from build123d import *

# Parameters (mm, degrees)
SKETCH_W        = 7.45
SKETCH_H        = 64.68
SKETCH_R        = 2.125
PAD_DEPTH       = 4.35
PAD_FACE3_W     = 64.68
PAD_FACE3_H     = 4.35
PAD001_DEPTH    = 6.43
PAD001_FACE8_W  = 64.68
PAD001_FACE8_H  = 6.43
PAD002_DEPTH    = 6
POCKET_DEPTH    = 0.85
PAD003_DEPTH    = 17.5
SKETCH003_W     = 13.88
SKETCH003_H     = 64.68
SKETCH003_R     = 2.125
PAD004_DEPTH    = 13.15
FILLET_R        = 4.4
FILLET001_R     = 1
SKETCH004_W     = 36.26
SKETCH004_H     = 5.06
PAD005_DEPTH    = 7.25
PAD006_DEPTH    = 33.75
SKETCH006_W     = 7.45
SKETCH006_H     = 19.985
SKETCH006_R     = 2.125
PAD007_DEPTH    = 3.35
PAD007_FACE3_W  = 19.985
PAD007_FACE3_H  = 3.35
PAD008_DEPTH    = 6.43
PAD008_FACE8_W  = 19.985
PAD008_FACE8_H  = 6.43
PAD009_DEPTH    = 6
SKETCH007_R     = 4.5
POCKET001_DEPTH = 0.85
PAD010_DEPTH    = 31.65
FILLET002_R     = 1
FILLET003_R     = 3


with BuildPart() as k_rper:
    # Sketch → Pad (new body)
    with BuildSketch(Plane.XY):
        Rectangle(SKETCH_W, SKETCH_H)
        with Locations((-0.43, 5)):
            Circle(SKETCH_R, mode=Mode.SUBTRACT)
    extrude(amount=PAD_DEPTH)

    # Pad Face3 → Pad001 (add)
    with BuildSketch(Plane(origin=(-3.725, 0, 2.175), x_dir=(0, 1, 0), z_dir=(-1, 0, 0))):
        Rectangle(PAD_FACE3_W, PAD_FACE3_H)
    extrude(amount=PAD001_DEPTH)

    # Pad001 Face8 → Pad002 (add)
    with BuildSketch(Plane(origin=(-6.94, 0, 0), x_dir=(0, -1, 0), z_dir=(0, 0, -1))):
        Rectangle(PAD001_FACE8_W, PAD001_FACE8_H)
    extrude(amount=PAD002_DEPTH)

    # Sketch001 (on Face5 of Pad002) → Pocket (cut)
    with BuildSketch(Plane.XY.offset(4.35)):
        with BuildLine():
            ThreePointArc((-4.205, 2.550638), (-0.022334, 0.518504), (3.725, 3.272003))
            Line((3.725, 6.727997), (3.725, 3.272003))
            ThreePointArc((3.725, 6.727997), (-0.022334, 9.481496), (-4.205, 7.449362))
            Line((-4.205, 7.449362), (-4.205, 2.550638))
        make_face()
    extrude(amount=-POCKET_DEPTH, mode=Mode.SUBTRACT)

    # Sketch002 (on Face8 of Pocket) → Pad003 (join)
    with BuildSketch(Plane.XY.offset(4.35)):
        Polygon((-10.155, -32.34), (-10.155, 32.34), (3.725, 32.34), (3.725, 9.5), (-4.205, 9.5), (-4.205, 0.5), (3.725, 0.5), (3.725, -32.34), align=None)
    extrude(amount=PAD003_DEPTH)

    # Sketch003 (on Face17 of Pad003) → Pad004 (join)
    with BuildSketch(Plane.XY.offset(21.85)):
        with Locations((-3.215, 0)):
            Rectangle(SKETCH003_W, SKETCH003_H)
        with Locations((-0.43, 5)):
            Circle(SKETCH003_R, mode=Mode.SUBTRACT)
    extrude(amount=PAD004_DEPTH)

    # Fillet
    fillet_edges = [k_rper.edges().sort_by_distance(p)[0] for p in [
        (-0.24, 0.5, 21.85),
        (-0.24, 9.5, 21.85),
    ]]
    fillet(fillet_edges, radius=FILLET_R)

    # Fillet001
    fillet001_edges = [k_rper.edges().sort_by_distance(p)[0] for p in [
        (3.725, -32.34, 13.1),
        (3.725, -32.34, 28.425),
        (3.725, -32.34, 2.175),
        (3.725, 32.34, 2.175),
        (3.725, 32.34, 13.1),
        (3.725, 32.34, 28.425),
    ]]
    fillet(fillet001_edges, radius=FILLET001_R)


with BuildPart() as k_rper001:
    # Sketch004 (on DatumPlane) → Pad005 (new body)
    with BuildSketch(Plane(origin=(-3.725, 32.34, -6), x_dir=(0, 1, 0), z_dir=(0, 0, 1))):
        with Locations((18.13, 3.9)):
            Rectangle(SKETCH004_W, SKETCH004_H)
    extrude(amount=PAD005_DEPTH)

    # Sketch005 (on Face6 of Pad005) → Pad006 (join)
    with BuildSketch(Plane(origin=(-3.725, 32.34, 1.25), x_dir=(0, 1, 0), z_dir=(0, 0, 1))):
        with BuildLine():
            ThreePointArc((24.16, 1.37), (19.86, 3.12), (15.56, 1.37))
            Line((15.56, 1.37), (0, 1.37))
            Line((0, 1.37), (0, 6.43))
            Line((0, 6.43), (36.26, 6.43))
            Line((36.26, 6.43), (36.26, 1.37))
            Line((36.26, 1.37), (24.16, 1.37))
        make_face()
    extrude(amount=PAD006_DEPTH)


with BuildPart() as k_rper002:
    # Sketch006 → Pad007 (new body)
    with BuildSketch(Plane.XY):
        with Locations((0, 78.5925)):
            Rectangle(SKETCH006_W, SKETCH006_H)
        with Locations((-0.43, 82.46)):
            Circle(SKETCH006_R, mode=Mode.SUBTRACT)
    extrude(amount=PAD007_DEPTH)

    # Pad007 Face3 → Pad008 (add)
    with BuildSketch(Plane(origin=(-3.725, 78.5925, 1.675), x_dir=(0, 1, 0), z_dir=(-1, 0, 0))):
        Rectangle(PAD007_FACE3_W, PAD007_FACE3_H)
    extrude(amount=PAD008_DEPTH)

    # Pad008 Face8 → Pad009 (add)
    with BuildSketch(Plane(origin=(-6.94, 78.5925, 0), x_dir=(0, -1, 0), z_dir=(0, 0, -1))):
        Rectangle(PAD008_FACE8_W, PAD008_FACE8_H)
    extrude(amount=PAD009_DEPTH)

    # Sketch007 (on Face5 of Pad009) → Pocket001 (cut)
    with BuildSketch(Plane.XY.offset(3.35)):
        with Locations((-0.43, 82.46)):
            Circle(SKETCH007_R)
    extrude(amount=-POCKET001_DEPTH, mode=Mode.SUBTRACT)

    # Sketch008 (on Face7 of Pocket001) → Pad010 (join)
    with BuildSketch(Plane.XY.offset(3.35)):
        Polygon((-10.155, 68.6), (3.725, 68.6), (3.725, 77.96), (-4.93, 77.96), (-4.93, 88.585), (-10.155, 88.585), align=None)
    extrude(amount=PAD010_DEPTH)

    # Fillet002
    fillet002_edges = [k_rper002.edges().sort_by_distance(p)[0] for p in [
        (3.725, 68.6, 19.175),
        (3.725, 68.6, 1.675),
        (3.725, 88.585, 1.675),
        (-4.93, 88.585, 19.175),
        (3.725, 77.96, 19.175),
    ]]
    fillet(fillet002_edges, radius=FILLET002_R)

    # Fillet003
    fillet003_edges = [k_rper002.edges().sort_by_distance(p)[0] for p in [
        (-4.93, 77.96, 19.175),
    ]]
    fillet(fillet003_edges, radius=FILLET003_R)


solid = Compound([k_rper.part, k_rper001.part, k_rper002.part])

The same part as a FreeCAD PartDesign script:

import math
import FreeCAD as App
import Part
import Sketcher

V = App.Vector


def edges_at(feature, points):
    """Names of the edges that pass closest to the given points."""
    edges = feature.Shape.Edges
    near = lambda p: min(range(len(edges)), key=lambda i: edges[i].distToShape(Part.Vertex(*p))[0])
    return sorted({f"Edge{near(p) + 1}" for p in points})


def add_polygon(sketch, points):
    """Adds a closed chain of lines whose ends are joined by coincident constraints."""
    first, n = sketch.GeometryCount, len(points)
    for a, b in zip(points, points[1:] + points[:1]):
        sketch.addGeometry(Part.LineSegment(App.Vector(*a, 0), App.Vector(*b, 0)), False)
    for i in range(n):
        sketch.addConstraint(Sketcher.Constraint("Coincident", first + i, 2, first + (i + 1) % n, 1))

doc = App.newDocument("Part")
body = doc.addObject("PartDesign::Body", "Body")

sketch1 = body.newObject("Sketcher::SketchObject", "Sketch")
sketch1.AttachmentSupport = (doc.getObject("XY_Plane"), [""])
sketch1.MapMode = "FlatFace"
add_polygon(sketch1, [(-3.7, 32.3), (-3.7, -32.3), (3.7, -32.3), (3.7, 32.3)])
sketch1.addGeometry(Part.Circle(V(-0.4, 5, 0), V(0, 0, 1), 2.1), False)
sketch1.addConstraint([
    Sketcher.Constraint("Vertical", 0),
    Sketcher.Constraint("Horizontal", 1),
    Sketcher.Constraint("Vertical", 2),
    Sketcher.Constraint("Horizontal", 3),
    Sketcher.Constraint("Symmetric", 0, 2, 2, 2, -1, 1),
    Sketcher.Constraint("Diameter", 4, 4.25),
    Sketcher.Constraint("DistanceY", -1, 1, 4, 3, 5.0),
    Sketcher.Constraint("DistanceX", 1, 1, 1, 2, 7.45),
    Sketcher.Constraint("DistanceY", 0, 2, 0, 1, 64.68),
    Sketcher.Constraint("DistanceX", 4, 3, -1, 1, 0.43),
])
pad1 = body.newObject("PartDesign::Pad", "Pad")
pad1.Profile = sketch1
pad1.Length = 4.35

sketch2 = body.newObject("Sketcher::SketchObject", "Sketch001")
sketch2.AttachmentSupport = (doc.getObject("YZ_Plane"), [""])
sketch2.MapMode = "FlatFace"
sketch2.AttachmentOffset = App.Placement(V(0, 0, -3.725), App.Rotation())
add_polygon(sketch2, [(-32.3, 0), (-32.3, 4.3), (32.3, 4.3), (32.3, 0)])
sketch2.addConstraint([
    Sketcher.Constraint("Vertical", 0),
    Sketcher.Constraint("Horizontal", 1),
    Sketcher.Constraint("Vertical", 2),
    Sketcher.Constraint("Horizontal", 3),
    Sketcher.Constraint("Symmetric", 2, 2, 3, 2, -1, 1),
    Sketcher.Constraint("DistanceX", 1, 1, 1, 2, 64.68),
    Sketcher.Constraint("DistanceY", 0, 1, 0, 2, 4.35),
])
pad2 = body.newObject("PartDesign::Pad", "Pad001")
pad2.Profile = sketch2
pad2.Length = 6.43
pad2.Reversed = True

sketch3 = body.newObject("Sketcher::SketchObject", "Sketch002")
sketch3.AttachmentSupport = (doc.getObject("XY_Plane"), [""])
sketch3.MapMode = "FlatFace"
add_polygon(sketch3, [(-10, 32), (-4, 32), (-4, -32), (-10, -32)])
sketch3.addConstraint([
    Sketcher.Constraint("Horizontal", 0),
    Sketcher.Constraint("Vertical", 1),
    Sketcher.Constraint("Horizontal", 2),
    Sketcher.Constraint("Vertical", 3),
    Sketcher.Constraint("DistanceX", 0, 1, 0, 2, 6.43),
    Sketcher.Constraint("DistanceY", 1, 2, 1, 1, 64.68),
    Sketcher.Constraint("DistanceY", -1, 1, 0, 2, 32.34),
    Sketcher.Constraint("DistanceX", 0, 2, -1, 1, 3.725),
])
pad3 = body.newObject("PartDesign::Pad", "Pad002")
pad3.Profile = sketch3
pad3.Length = 6
pad3.Reversed = True

sketch4 = body.newObject("Sketcher::SketchObject", "Sketch003")
sketch4.AttachmentSupport = (doc.getObject("XY_Plane"), [""])
sketch4.MapMode = "FlatFace"
sketch4.AttachmentOffset = App.Placement(V(0, 0, 4.35), App.Rotation())
sketch4.addGeometry([
    Part.ArcOfCircle(Part.Circle(V(-0.4, 5, 0), V(0, 0, 1), 4.5), math.radians(-147), math.radians(-23)),
    Part.LineSegment(V(3.7, 3.3, 0), V(3.7, 6.7, 0)),
    Part.ArcOfCircle(Part.Circle(V(-0.4, 5, 0), V(0, 0, 1), 4.5), math.radians(23), math.radians(147)),
    Part.LineSegment(V(-4.2, 7.4, 0), V(-4.2, 2.6, 0)),
], False)
sketch4.addConstraint([
    Sketcher.Constraint("Coincident", 0, 2, 1, 1),
    Sketcher.Constraint("Coincident", 1, 2, 2, 1),
    Sketcher.Constraint("Coincident", 2, 2, 3, 1),
    Sketcher.Constraint("Coincident", 3, 2, 0, 1),
    Sketcher.Constraint("Vertical", 1),
    Sketcher.Constraint("Vertical", 3),
    Sketcher.Constraint("Coincident", 2, 3, 0, 3),
    Sketcher.Constraint("Equal", 0, 2),
    Sketcher.Constraint("Radius", 0, 4.5),
    Sketcher.Constraint("DistanceY", -1, 1, 0, 3, 5.0),
    Sketcher.Constraint("DistanceX", 0, 3, -1, 1, 0.43),
    Sketcher.Constraint("DistanceX", 2, 2, 1, 2, 7.93),
    Sketcher.Constraint("DistanceX", -1, 1, 0, 2, 3.725),
])
pocket1 = body.newObject("PartDesign::Pocket", "Pocket")
pocket1.Profile = sketch4
pocket1.Length = 0.85

sketch5 = body.newObject("Sketcher::SketchObject", "Sketch004")
sketch5.AttachmentSupport = (doc.getObject("XY_Plane"), [""])
sketch5.MapMode = "FlatFace"
sketch5.AttachmentOffset = App.Placement(V(0, 0, 4.35), App.Rotation())
add_polygon(sketch5, [(-10, 32), (-10, -32), (4, -32), (4, 0), (-4, 0), (-4, 10), (4, 10), (4, 32)])
sketch5.addConstraint([
    Sketcher.Constraint("Vertical", 0),
    Sketcher.Constraint("Horizontal", 1),
    Sketcher.Constraint("Vertical", 2),
    Sketcher.Constraint("Horizontal", 3),
    Sketcher.Constraint("Vertical", 4),
    Sketcher.Constraint("Horizontal", 5),
    Sketcher.Constraint("Vertical", 6),
    Sketcher.Constraint("Horizontal", 7),
    Sketcher.Constraint("Symmetric", 1, 2, 6, 2, -1),
    Sketcher.Constraint("DistanceY", 4, 1, 4, 2, 9.0),
    Sketcher.Constraint("DistanceX", 1, 1, 1, 2, 13.88),
    Sketcher.Constraint("DistanceX", 3, 2, 3, 1, 7.93),
    Sketcher.Constraint("DistanceY", 0, 2, 0, 1, 64.68),
    Sketcher.Constraint("DistanceY", 2, 1, 2, 2, 32.84),
    Sketcher.Constraint("DistanceX", 0, 2, -1, 1, 10.155),
])
pad4 = body.newObject("PartDesign::Pad", "Pad003")
pad4.Profile = sketch5
pad4.Length = 17.5

sketch6 = body.newObject("Sketcher::SketchObject", "Sketch005")
sketch6.AttachmentSupport = (doc.getObject("XY_Plane"), [""])
sketch6.MapMode = "FlatFace"
sketch6.AttachmentOffset = App.Placement(V(0, 0, 21.85), App.Rotation())
add_polygon(sketch6, [(-10.2, 32.3), (-10.2, -32.3), (3.7, -32.3), (3.7, 32.3)])
sketch6.addGeometry(Part.Circle(V(-0.4, 5, 0), V(0, 0, 1), 2.1), False)
sketch6.addConstraint([
    Sketcher.Constraint("Vertical", 0),
    Sketcher.Constraint("Horizontal", 1),
    Sketcher.Constraint("Vertical", 2),
    Sketcher.Constraint("Horizontal", 3),
    Sketcher.Constraint("Diameter", 4, 4.25),
    Sketcher.Constraint("DistanceY", -1, 1, 4, 3, 5.0),
    Sketcher.Constraint("DistanceX", 1, 1, 1, 2, 13.88),
    Sketcher.Constraint("DistanceY", 0, 2, 0, 1, 64.68),
    Sketcher.Constraint("DistanceX", 4, 3, -1, 1, 0.43),
    Sketcher.Constraint("DistanceY", 0, 2, -1, 1, 32.34),
    Sketcher.Constraint("DistanceX", 0, 2, -1, 1, 10.155),
])
pad5 = body.newObject("PartDesign::Pad", "Pad004")
pad5.Profile = sketch6
pad5.Length = 13.15
doc.recompute()

fillet = body.newObject("PartDesign::Fillet", "Fillet")
fillet.Base = (pad5, edges_at(pad5, [(-0.24, 0.5, 21.85), (-0.24, 9.5, 21.85)]))
fillet.Radius = 4.4
doc.recompute()

fillet2 = body.newObject("PartDesign::Fillet", "Fillet001")
fillet2.Base = (fillet, edges_at(fillet, [
    (3.725, -32.34, 17.5),
    (3.725, -32.34, 17.5),
    (3.725, -32.34, 17.5),
    (3.725, 32.34, 17.5),
    (3.725, 32.34, 17.5),
    (3.725, 32.34, 17.5),
]))
fillet2.Radius = 1
body2 = doc.addObject("PartDesign::Body", "Body001")

sketch7 = body2.newObject("Sketcher::SketchObject", "Sketch006")
sketch7.AttachmentSupport = (doc.getObject("XY_Plane001"), [""])
sketch7.MapMode = "FlatFace"
sketch7.AttachmentOffset = App.Placement(V(0, 0, -6), App.Rotation())
add_polygon(sketch7, [(-10, 32), (-5, 32), (-5, 69), (-10, 69)])
sketch7.addConstraint([
    Sketcher.Constraint("Horizontal", 0),
    Sketcher.Constraint("Vertical", 1),
    Sketcher.Constraint("Horizontal", 2),
    Sketcher.Constraint("Vertical", 3),
    Sketcher.Constraint("DistanceX", 0, 1, 0, 2, 5.06),
    Sketcher.Constraint("DistanceY", 1, 1, 1, 2, 36.26),
    Sketcher.Constraint("DistanceY", -1, 1, 1, 2, 68.6),
    Sketcher.Constraint("DistanceX", 0, 2, -1, 1, 5.095),
])
pad6 = body2.newObject("PartDesign::Pad", "Pad005")
pad6.Profile = sketch7
pad6.Length = 7.25

sketch8 = body2.newObject("Sketcher::SketchObject", "Sketch007")
sketch8.AttachmentSupport = (doc.getObject("XY_Plane001"), [""])
sketch8.MapMode = "FlatFace"
sketch8.AttachmentOffset = App.Placement(V(0, 0, 1.25), App.Rotation())
sketch8.addGeometry([
    Part.ArcOfCircle(Part.Circle(V(-1, 52, 0), V(0, 0, 1), 6), math.radians(136), math.radians(224)),
    Part.LineSegment(V(-5, 56, 0), V(-5, 69, 0)),
    Part.LineSegment(V(-5, 69, 0), V(-10, 69, 0)),
    Part.LineSegment(V(-10, 69, 0), V(-10, 32, 0)),
    Part.LineSegment(V(-10, 32, 0), V(-5, 32, 0)),
    Part.LineSegment(V(-5, 32, 0), V(-5, 48, 0)),
], False)
sketch8.addConstraint([
    Sketcher.Constraint("Coincident", 0, 1, 1, 1),
    Sketcher.Constraint("Coincident", 1, 2, 2, 1),
    Sketcher.Constraint("Coincident", 2, 2, 3, 1),
    Sketcher.Constraint("Coincident", 3, 2, 4, 1),
    Sketcher.Constraint("Coincident", 4, 2, 5, 1),
    Sketcher.Constraint("Coincident", 5, 2, 0, 2),
    Sketcher.Constraint("Vertical", 1),
    Sketcher.Constraint("Horizontal", 2),
    Sketcher.Constraint("Vertical", 3),
    Sketcher.Constraint("Horizontal", 4),
    Sketcher.Constraint("Vertical", 5),
    Sketcher.Constraint("Vertical", 1, 2, 4, 2),
    Sketcher.Constraint("DistanceY", 1, 1, 1, 2, 12.1),
    Sketcher.Constraint("DistanceX", 2, 2, 2, 1, 5.06),
    Sketcher.Constraint("DistanceY", 3, 2, 3, 1, 36.26),
    Sketcher.Constraint("DistanceY", 5, 1, 5, 2, 15.56),
    Sketcher.Constraint("DistanceY", -1, 1, 0, 3, 52.2),
    Sketcher.Constraint("DistanceX", 0, 1, -1, 1, 5.095),
    Sketcher.Constraint("Radius", 0, 6.157857),
])
pad7 = body2.newObject("PartDesign::Pad", "Pad006")
pad7.Profile = sketch8
pad7.Length = 33.75
body3 = doc.addObject("PartDesign::Body", "Body002")

sketch9 = body3.newObject("Sketcher::SketchObject", "Sketch008")
sketch9.AttachmentSupport = (doc.getObject("XY_Plane002"), [""])
sketch9.MapMode = "FlatFace"
add_polygon(sketch9, [(-3.7, 88.6), (-3.7, 68.6), (3.7, 68.6), (3.7, 88.6)])
sketch9.addGeometry(Part.Circle(V(-0.4, 82.5, 0), V(0, 0, 1), 2.1), False)
sketch9.addConstraint([
    Sketcher.Constraint("Vertical", 0),
    Sketcher.Constraint("Horizontal", 1),
    Sketcher.Constraint("Vertical", 2),
    Sketcher.Constraint("Horizontal", 3),
    Sketcher.Constraint("Diameter", 4, 4.25),
    Sketcher.Constraint("DistanceX", 1, 1, 1, 2, 7.45),
    Sketcher.Constraint("DistanceY", -1, 1, 0, 2, 68.6),
    Sketcher.Constraint("DistanceY", 0, 2, 0, 1, 19.985),
    Sketcher.Constraint("DistanceX", 4, 3, -1, 1, 0.43),
    Sketcher.Constraint("DistanceY", -1, 1, 4, 3, 82.46),
    Sketcher.Constraint("DistanceX", 0, 2, -1, 1, 3.725),
])
pad8 = body3.newObject("PartDesign::Pad", "Pad007")
pad8.Profile = sketch9
pad8.Length = 3.35

sketch10 = body3.newObject("Sketcher::SketchObject", "Sketch009")
sketch10.AttachmentSupport = (doc.getObject("YZ_Plane002"), [""])
sketch10.MapMode = "FlatFace"
sketch10.AttachmentOffset = App.Placement(V(0, 0, -3.725), App.Rotation())
add_polygon(sketch10, [(68.6, 0), (68.6, 3.4), (88.6, 3.4), (88.6, 0)])
sketch10.addConstraint([
    Sketcher.Constraint("Vertical", 0),
    Sketcher.Constraint("Horizontal", 1),
    Sketcher.Constraint("Vertical", 2),
    Sketcher.Constraint("Horizontal", 3),
    Sketcher.Constraint("PointOnObject", 2, 2, -1),
    Sketcher.Constraint("DistanceY", 0, 1, 0, 2, 3.35),
    Sketcher.Constraint("DistanceX", -1, 1, 0, 2, 68.6),
    Sketcher.Constraint("DistanceX", 1, 1, 1, 2, 19.985),
])
pad9 = body3.newObject("PartDesign::Pad", "Pad008")
pad9.Profile = sketch10
pad9.Length = 6.43
pad9.Reversed = True

sketch11 = body3.newObject("Sketcher::SketchObject", "Sketch010")
sketch11.AttachmentSupport = (doc.getObject("XY_Plane002"), [""])
sketch11.MapMode = "FlatFace"
add_polygon(sketch11, [(-10, 89), (-4, 89), (-4, 69), (-10, 69)])
sketch11.addConstraint([
    Sketcher.Constraint("Horizontal", 0),
    Sketcher.Constraint("Vertical", 1),
    Sketcher.Constraint("Horizontal", 2),
    Sketcher.Constraint("Vertical", 3),
    Sketcher.Constraint("DistanceX", 0, 1, 0, 2, 6.43),
    Sketcher.Constraint("DistanceY", -1, 1, 1, 2, 68.6),
    Sketcher.Constraint("DistanceY", 1, 2, 1, 1, 19.985),
    Sketcher.Constraint("DistanceX", 0, 2, -1, 1, 3.725),
])
pad10 = body3.newObject("PartDesign::Pad", "Pad009")
pad10.Profile = sketch11
pad10.Length = 6
pad10.Reversed = True

sketch12 = body3.newObject("Sketcher::SketchObject", "Sketch011")
sketch12.AttachmentSupport = (doc.getObject("XY_Plane002"), [""])
sketch12.MapMode = "FlatFace"
sketch12.AttachmentOffset = App.Placement(V(0, 0, 3.35), App.Rotation())
sketch12.addGeometry(Part.Circle(V(-0.4, 82.5, 0), V(0, 0, 1), 4.5), False)
sketch12.addConstraint([
    Sketcher.Constraint("Diameter", 0, 9.0),
    Sketcher.Constraint("DistanceX", 0, 3, -1, 1, 0.43),
    Sketcher.Constraint("DistanceY", -1, 1, 0, 3, 82.46),
])
pocket2 = body3.newObject("PartDesign::Pocket", "Pocket001")
pocket2.Profile = sketch12
pocket2.Length = 0.85

sketch13 = body3.newObject("Sketcher::SketchObject", "Sketch012")
sketch13.AttachmentSupport = (doc.getObject("XY_Plane002"), [""])
sketch13.MapMode = "FlatFace"
sketch13.AttachmentOffset = App.Placement(V(0, 0, 3.35), App.Rotation())
add_polygon(sketch13, [(-10, 69), (4, 69), (4, 78), (-5, 78), (-5, 89), (-10, 89)])
sketch13.addConstraint([
    Sketcher.Constraint("Horizontal", 0),
    Sketcher.Constraint("Vertical", 1),
    Sketcher.Constraint("Horizontal", 2),
    Sketcher.Constraint("Vertical", 3),
    Sketcher.Constraint("Horizontal", 4),
    Sketcher.Constraint("Vertical", 5),
    Sketcher.Constraint("DistanceX", 0, 1, 0, 2, 13.88),
    Sketcher.Constraint("DistanceY", 1, 1, 1, 2, 9.36),
    Sketcher.Constraint("DistanceY", -1, 1, 0, 2, 68.6),
    Sketcher.Constraint("DistanceX", 2, 2, 2, 1, 8.655),
    Sketcher.Constraint("DistanceY", 3, 1, 3, 2, 10.625),
    Sketcher.Constraint("DistanceX", 2, 2, -1, 1, 4.93),
])
pad11 = body3.newObject("PartDesign::Pad", "Pad010")
pad11.Profile = sketch13
pad11.Length = 31.65
doc.recompute()

fillet3 = body3.newObject("PartDesign::Fillet", "Fillet002")
fillet3.Base = (pad11, edges_at(pad11, [
    (3.725, 68.6, 17.5),
    (3.725, 68.6, 17.5),
    (3.725, 88.585, 1.675),
    (-4.93, 88.585, 19.175),
    (3.725, 77.96, 19.175),
]))
fillet3.Radius = 1
doc.recompute()

fillet4 = body3.newObject("PartDesign::Fillet", "Fillet003")
fillet4.Base = (fillet3, edges_at(fillet3, [(-4.93, 77.96, 19.175)]))
fillet4.Radius = 3

doc.recompute()
